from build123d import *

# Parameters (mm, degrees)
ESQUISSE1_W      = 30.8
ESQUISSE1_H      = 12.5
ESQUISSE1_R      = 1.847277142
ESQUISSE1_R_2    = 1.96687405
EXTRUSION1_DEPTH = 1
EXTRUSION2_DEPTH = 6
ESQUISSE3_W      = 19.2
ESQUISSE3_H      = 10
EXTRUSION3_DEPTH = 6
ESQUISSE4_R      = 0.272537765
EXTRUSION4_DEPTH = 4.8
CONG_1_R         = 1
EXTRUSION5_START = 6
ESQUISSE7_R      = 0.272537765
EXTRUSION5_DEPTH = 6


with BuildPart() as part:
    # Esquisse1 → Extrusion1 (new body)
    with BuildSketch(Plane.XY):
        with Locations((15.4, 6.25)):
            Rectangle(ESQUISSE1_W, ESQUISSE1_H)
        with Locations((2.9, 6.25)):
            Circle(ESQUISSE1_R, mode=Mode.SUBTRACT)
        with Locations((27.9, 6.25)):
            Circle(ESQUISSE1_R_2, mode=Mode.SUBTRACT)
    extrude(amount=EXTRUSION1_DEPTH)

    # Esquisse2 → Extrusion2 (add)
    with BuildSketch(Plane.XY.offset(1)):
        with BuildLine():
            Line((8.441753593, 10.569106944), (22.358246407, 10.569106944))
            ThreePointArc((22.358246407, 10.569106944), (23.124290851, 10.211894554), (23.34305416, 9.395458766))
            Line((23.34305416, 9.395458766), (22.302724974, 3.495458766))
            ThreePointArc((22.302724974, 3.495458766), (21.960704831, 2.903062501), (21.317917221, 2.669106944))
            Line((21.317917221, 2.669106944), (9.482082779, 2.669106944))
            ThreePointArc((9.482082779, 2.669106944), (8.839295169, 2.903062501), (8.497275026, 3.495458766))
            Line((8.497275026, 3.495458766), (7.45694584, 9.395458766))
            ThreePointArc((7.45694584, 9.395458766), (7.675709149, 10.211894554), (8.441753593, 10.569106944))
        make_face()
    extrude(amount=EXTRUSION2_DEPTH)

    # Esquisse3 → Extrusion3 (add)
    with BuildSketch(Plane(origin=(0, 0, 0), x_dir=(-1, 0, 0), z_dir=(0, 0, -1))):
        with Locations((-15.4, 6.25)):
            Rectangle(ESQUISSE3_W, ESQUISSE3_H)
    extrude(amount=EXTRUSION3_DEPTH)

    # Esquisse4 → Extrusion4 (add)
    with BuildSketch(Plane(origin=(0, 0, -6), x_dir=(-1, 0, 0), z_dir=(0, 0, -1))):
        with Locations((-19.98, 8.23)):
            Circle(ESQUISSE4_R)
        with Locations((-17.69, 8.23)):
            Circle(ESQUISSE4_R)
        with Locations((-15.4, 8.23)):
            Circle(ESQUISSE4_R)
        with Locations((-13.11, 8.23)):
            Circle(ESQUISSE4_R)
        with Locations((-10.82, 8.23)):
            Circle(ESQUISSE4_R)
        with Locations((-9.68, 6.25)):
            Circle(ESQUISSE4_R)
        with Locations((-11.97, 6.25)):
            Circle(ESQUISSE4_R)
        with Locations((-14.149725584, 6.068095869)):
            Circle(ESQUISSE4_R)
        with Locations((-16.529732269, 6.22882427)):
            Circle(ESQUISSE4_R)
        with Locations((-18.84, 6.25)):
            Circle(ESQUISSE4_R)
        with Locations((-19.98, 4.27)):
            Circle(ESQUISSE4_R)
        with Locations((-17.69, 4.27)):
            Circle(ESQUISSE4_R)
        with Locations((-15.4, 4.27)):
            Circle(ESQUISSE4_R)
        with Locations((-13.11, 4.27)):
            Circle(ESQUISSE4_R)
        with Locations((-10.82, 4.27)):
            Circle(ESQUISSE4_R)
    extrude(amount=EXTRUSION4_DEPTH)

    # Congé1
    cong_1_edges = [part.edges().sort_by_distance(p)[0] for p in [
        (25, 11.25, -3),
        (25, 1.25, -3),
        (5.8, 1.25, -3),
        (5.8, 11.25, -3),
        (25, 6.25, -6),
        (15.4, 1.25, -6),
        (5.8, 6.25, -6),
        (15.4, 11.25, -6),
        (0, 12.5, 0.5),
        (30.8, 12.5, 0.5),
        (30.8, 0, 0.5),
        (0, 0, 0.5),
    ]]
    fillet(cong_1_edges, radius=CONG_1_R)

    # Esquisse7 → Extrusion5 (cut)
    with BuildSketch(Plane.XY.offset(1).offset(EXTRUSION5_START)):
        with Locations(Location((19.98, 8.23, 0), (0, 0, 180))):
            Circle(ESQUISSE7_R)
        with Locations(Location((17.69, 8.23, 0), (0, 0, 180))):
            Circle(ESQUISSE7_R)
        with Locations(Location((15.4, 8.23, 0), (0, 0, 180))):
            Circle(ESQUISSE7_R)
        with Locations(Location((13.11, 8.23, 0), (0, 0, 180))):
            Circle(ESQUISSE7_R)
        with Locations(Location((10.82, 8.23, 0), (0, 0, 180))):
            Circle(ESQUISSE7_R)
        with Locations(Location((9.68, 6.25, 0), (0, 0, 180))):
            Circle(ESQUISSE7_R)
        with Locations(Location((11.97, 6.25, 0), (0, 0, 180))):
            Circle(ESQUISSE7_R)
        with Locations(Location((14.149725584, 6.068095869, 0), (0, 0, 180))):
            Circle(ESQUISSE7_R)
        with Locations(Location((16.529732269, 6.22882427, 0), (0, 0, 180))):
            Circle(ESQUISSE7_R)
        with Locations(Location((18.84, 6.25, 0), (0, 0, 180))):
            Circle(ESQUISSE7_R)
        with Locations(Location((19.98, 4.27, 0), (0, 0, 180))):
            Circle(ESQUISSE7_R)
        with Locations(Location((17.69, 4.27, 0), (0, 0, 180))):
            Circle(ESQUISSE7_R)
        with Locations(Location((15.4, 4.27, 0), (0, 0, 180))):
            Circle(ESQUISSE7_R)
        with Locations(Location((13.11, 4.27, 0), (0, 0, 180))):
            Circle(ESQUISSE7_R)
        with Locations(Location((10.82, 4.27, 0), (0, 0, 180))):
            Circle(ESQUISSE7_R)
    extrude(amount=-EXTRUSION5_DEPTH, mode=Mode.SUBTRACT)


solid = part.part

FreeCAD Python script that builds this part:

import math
import FreeCAD as App
import Part
import Sketcher
from FreeCAD import Vector
Q = App.Units.Quantity


def edges_at(feature, points):
    """Names of the edges that pass closest to the given points."""
    edges = feature.Shape.Edges
    near = lambda p: min(range(len(edges)), key=lambda i: edges[i].distToShape(Part.Vertex(*p))[0])
    return sorted({f"Edge{near(p) + 1}" for p in points})

doc = App.newDocument("Part")
params = doc.addObject("Spreadsheet::Sheet", "Params")
for row, (alias, value) in enumerate([
    ("sketch1_width", "30.8 mm"),
    ("sketch1_height", "12.5 mm"),
    ("pad1_length", "1 mm"),
    ("sketch2_radius", "1 mm"),
    ("pad2_length", "6 mm"),
    ("sketch3_height", "10 mm"),
    ("sketch3_width", "19.2 mm"),
    ("pad3_length", "6 mm"),
    ("pad4_length", "4.8 mm"),
    ("fillet_radius", "1 mm"),
    ("pocket1_length", "6 mm"),
], start=1):
    params.set(f"A{row}", alias)
    params.set(f"B{row}", "=" + value)
    params.setAlias(f"B{row}", alias)

body = doc.addObject("PartDesign::Body", "Body")

sketch1 = doc.addObject("Sketcher::SketchObject", "Sketch")
body.addObject(sketch1)
sketch1.AttachmentSupport = (doc.XY_Plane, [""])
sketch1.MapMode = "FlatFace"
sketch1.addGeometry(Part.LineSegment(Vector(0, 12.5, 0), Vector(0, 0, 0)), False)
sketch1.addGeometry(Part.LineSegment(Vector(0, 0, 0), Vector(30.8, 0, 0)), False)
sketch1.addGeometry(Part.LineSegment(Vector(30.8, 0, 0), Vector(30.8, 12.5, 0)), False)
sketch1.addGeometry(Part.LineSegment(Vector(30.8, 12.5, 0), Vector(0, 12.5, 0)), False)
sketch1.addGeometry(Part.Circle(Vector(2.9, 6.2, 0), Vector(0, 0, 1), 1.8), False)
sketch1.addGeometry(Part.Circle(Vector(27.9, 6.2, 0), Vector(0, 0, 1), 2), False)
sketch1.addConstraint(Sketcher.Constraint("Coincident", 0, 2, 1, 1))
sketch1.addConstraint(Sketcher.Constraint("Coincident", 1, 2, 2, 1))
sketch1.addConstraint(Sketcher.Constraint("Coincident", 2, 2, 3, 1))
sketch1.addConstraint(Sketcher.Constraint("Coincident", 3, 2, 0, 1))
sketch1.addConstraint(Sketcher.Constraint("Vertical", 0))
sketch1.addConstraint(Sketcher.Constraint("Horizontal", 1))
sketch1.addConstraint(Sketcher.Constraint("Vertical", 2))
sketch1.addConstraint(Sketcher.Constraint("Horizontal", 3))
sketch1.addConstraint(Sketcher.Constraint("Coincident", 0, 2, -1, 1))
sketch1.addConstraint(Sketcher.Constraint("Horizontal", 4, 3, 5, 3))
sketch1.addConstraint(Sketcher.Constraint("DistanceX", 1, 1, 1, 2, Q("30.8 mm")))
sketch1.addConstraint(Sketcher.Constraint("DistanceY", 0, 2, 0, 1, Q("12.5 mm")))
sketch1.addConstraint(Sketcher.Constraint("DistanceX", 4, 3, 5, 3, Q("25 mm")))
sketch1.addConstraint(Sketcher.Constraint("DistanceX", -1, 1, 4, 3, Q("2.9 mm")))
sketch1.addConstraint(Sketcher.Constraint("Diameter", 5, Q("3.933748 mm")))
sketch1.addConstraint(Sketcher.Constraint("DistanceY", -1, 1, 4, 3, Q("6.25 mm")))
sketch1.addConstraint(Sketcher.Constraint("Diameter", 4, Q("3.694554 mm")))
sketch1.setExpression("Constraints[10]", "Params.sketch1_width")
sketch1.setExpression("Constraints[11]", "Params.sketch1_height")
pad1 = doc.addObject("PartDesign::Pad", "Pad")
body.addObject(pad1)
pad1.Profile = sketch1
pad1.setExpression("Length", "Params.pad1_length")

sketch2 = doc.addObject("Sketcher::SketchObject", "Sketch001")
body.addObject(sketch2)
sketch2.AttachmentSupport = (doc.XY_Plane, [""])
sketch2.MapMode = "FlatFace"
sketch2.AttachmentOffset = App.Placement(Vector(0, 0, 1), App.Rotation())
sketch2.addGeometry(Part.LineSegment(Vector(22.4, 10.6, 0), Vector(8.4, 10.6, 0)), False)
sketch2.addGeometry(Part.ArcOfCircle(Part.Circle(Vector(8.4, 9.6, 0), Vector(0, 0, 1), 1), math.radians(90), math.radians(190)), False)
sketch2.addGeometry(Part.LineSegment(Vector(7.5, 9.4, 0), Vector(8.5, 3.5, 0)), False)
sketch2.addGeometry(Part.ArcOfCircle(Part.Circle(Vector(9.5, 3.7, 0), Vector(0, 0, 1), 1), math.radians(-170), math.radians(-90)), False)
sketch2.addGeometry(Part.LineSegment(Vector(9.5, 2.7, 0), Vector(21.3, 2.7, 0)), False)
sketch2.addGeometry(Part.ArcOfCircle(Part.Circle(Vector(21.3, 3.7, 0), Vector(0, 0, 1), 1), math.radians(-90), math.radians(-10)), False)
sketch2.addGeometry(Part.LineSegment(Vector(22.3, 3.5, 0), Vector(23.3, 9.4, 0)), False)
sketch2.addGeometry(Part.ArcOfCircle(Part.Circle(Vector(22.4, 9.6, 0), Vector(0, 0, 1), 1), math.radians(-10), math.radians(90)), False)
sketch2.addConstraint(Sketcher.Constraint("Tangent", 0, 2, 1, 1))
sketch2.addConstraint(Sketcher.Constraint("Tangent", 1, 2, 2, 1))
sketch2.addConstraint(Sketcher.Constraint("Tangent", 2, 2, 3, 1))
sketch2.addConstraint(Sketcher.Constraint("Tangent", 3, 2, 4, 1))
sketch2.addConstraint(Sketcher.Constraint("Tangent", 4, 2, 5, 1))
sketch2.addConstraint(Sketcher.Constraint("Tangent", 5, 2, 6, 1))
sketch2.addConstraint(Sketcher.Constraint("Tangent", 6, 2, 7, 1))
sketch2.addConstraint(Sketcher.Constraint("Tangent", 7, 2, 0, 1))
sketch2.addConstraint(Sketcher.Constraint("Horizontal", 0))
sketch2.addConstraint(Sketcher.Constraint("Horizontal", 4))
sketch2.addConstraint(Sketcher.Constraint("Equal", 1, 3))
sketch2.addConstraint(Sketcher.Constraint("Equal", 3, 5))
sketch2.addConstraint(Sketcher.Constraint("Equal", 5, 7))
sketch2.addConstraint(Sketcher.Constraint("Horizontal", 2, 2, 5, 2))
sketch2.addConstraint(Sketcher.Constraint("Radius", 1, Q("1 mm")))
sketch2.addConstraint(Sketcher.Constraint("Angle", 2, Q("-80 deg")))
sketch2.addConstraint(Sketcher.Constraint("DistanceY", 3, 3, 1, 3, Q("5.9 mm")))
sketch2.addConstraint(Sketcher.Constraint("DistanceX", 1, 2, 7, 3, Q("14.901301 mm")))
sketch2.addConstraint(Sketcher.Constraint("DistanceY", -1, 1, 1, 2, Q("9.395459 mm")))
sketch2.addConstraint(Sketcher.Constraint("DistanceX", -1, 1, 1, 3, Q("8.441754 mm")))
sketch2.setExpression("Constraints[14]", "Params.sketch2_radius")
pad2 = doc.addObject("PartDesign::Pad", "Pad001")
body.addObject(pad2)
pad2.Profile = sketch2
pad2.setExpression("Length", "Params.pad2_length")

sketch3 = doc.addObject("Sketcher::SketchObject", "Sketch002")
body.addObject(sketch3)
sketch3.AttachmentSupport = (doc.XY_Plane, [""])
sketch3.MapMode = "FlatFace"
sketch3.addGeometry(Part.LineSegment(Vector(25, 11, 0), Vector(25, 1, 0)), False)
sketch3.addGeometry(Part.LineSegment(Vector(25, 1, 0), Vector(6, 1, 0)), False)
sketch3.addGeometry(Part.LineSegment(Vector(6, 1, 0), Vector(6, 11, 0)), False)
sketch3.addGeometry(Part.LineSegment(Vector(6, 11, 0), Vector(25, 11, 0)), False)
sketch3.addConstraint(Sketcher.Constraint("Coincident", 0, 2, 1, 1))
sketch3.addConstraint(Sketcher.Constraint("Coincident", 1, 2, 2, 1))
sketch3.addConstraint(Sketcher.Constraint("Coincident", 2, 2, 3, 1))
sketch3.addConstraint(Sketcher.Constraint("Coincident", 3, 2, 0, 1))
sketch3.addConstraint(Sketcher.Constraint("Vertical", 0))
sketch3.addConstraint(Sketcher.Constraint("Horizontal", 1))
sketch3.addConstraint(Sketcher.Constraint("Vertical", 2))
sketch3.addConstraint(Sketcher.Constraint("Horizontal", 3))
sketch3.addConstraint(Sketcher.Constraint("DistanceY", 0, 2, 0, 1, Q("10 mm")))
sketch3.addConstraint(Sketcher.Constraint("DistanceX", 1, 2, 1, 1, Q("19.2 mm")))
sketch3.addConstraint(Sketcher.Constraint("DistanceX", -1, 1, 0, 2, Q("25 mm")))
sketch3.addConstraint(Sketcher.Constraint("DistanceY", -1, 1, 0, 2, Q("1.25 mm")))
sketch3.setExpression("Constraints[8]", "Params.sketch3_height")
sketch3.setExpression("Constraints[9]", "Params.sketch3_width")
pad3 = doc.addObject("PartDesign::Pad", "Pad002")
body.addObject(pad3)
pad3.Profile = sketch3
pad3.setExpression("Length", "Params.pad3_length")
pad3.Reversed = True

sketch4 = doc.addObject("Sketcher::SketchObject", "Sketch003")
body.addObject(sketch4)
sketch4.AttachmentSupport = (doc.XY_Plane, [""])
sketch4.MapMode = "FlatFace"
sketch4.AttachmentOffset = App.Placement(Vector(0, 0, -6), App.Rotation())
sketch4.addGeometry(Part.Circle(Vector(19.98, 8.23, 0), Vector(0, 0, 1), 0.27), False)
sketch4.addGeometry(Part.Circle(Vector(17.69, 8.23, 0), Vector(0, 0, 1), 0.27), False)
sketch4.addGeometry(Part.Circle(Vector(15.4, 8.23, 0), Vector(0, 0, 1), 0.27), False)
sketch4.addGeometry(Part.Circle(Vector(13.11, 8.23, 0), Vector(0, 0, 1), 0.27), False)
sketch4.addGeometry(Part.Circle(Vector(10.82, 8.23, 0), Vector(0, 0, 1), 0.27), False)
sketch4.addGeometry(Part.Circle(Vector(9.68, 6.25, 0), Vector(0, 0, 1), 0.27), False)
sketch4.addGeometry(Part.Circle(Vector(11.97, 6.25, 0), Vector(0, 0, 1), 0.27), False)
sketch4.addGeometry(Part.Circle(Vector(14.15, 6.07, 0), Vector(0, 0, 1), 0.27), False)
sketch4.addGeometry(Part.Circle(Vector(16.53, 6.23, 0), Vector(0, 0, 1), 0.27), False)
sketch4.addGeometry(Part.Circle(Vector(18.84, 6.25, 0), Vector(0, 0, 1), 0.27), False)
sketch4.addGeometry(Part.Circle(Vector(19.98, 4.27, 0), Vector(0, 0, 1), 0.27), False)
sketch4.addGeometry(Part.Circle(Vector(17.69, 4.27, 0), Vector(0, 0, 1), 0.27), False)
sketch4.addGeometry(Part.Circle(Vector(15.4, 4.27, 0), Vector(0, 0, 1), 0.27), False)
sketch4.addGeometry(Part.Circle(Vector(13.11, 4.27, 0), Vector(0, 0, 1), 0.27), False)
sketch4.addGeometry(Part.Circle(Vector(10.82, 4.27, 0), Vector(0, 0, 1), 0.27), False)
sketch4.addConstraint(Sketcher.Constraint("Equal", 0, 1))
sketch4.addConstraint(Sketcher.Constraint("Equal", 1, 2))
sketch4.addConstraint(Sketcher.Constraint("Equal", 2, 3))
sketch4.addConstraint(Sketcher.Constraint("Equal", 3, 4))
sketch4.addConstraint(Sketcher.Constraint("Equal", 4, 5))
sketch4.addConstraint(Sketcher.Constraint("Equal", 5, 6))
sketch4.addConstraint(Sketcher.Constraint("Equal", 6, 7))
sketch4.addConstraint(Sketcher.Constraint("Equal", 7, 8))
sketch4.addConstraint(Sketcher.Constraint("Equal", 8, 9))
sketch4.addConstraint(Sketcher.Constraint("Equal", 9, 10))
sketch4.addConstraint(Sketcher.Constraint("Equal", 10, 11))
sketch4.addConstraint(Sketcher.Constraint("Equal", 11, 12))
sketch4.addConstraint(Sketcher.Constraint("Equal", 12, 13))
sketch4.addConstraint(Sketcher.Constraint("Equal", 13, 14))
sketch4.addConstraint(Sketcher.Constraint("Horizontal", 0, 3, 1, 3))
sketch4.addConstraint(Sketcher.Constraint("Horizontal", 1, 3, 2, 3))
sketch4.addConstraint(Sketcher.Constraint("Horizontal", 2, 3, 3, 3))
sketch4.addConstraint(Sketcher.Constraint("Horizontal", 3, 3, 4, 3))
sketch4.addConstraint(Sketcher.Constraint("Horizontal", 5, 3, 6, 3))
sketch4.addConstraint(Sketcher.Constraint("Horizontal", 6, 3, 9, 3))
sketch4.addConstraint(Sketcher.Constraint("Horizontal", 10, 3, 11, 3))
sketch4.addConstraint(Sketcher.Constraint("Horizontal", 11, 3, 12, 3))
sketch4.addConstraint(Sketcher.Constraint("Horizontal", 12, 3, 13, 3))
sketch4.addConstraint(Sketcher.Constraint("Horizontal", 13, 3, 14, 3))
sketch4.addConstraint(Sketcher.Constraint("Vertical", 0, 3, 10, 3))
sketch4.addConstraint(Sketcher.Constraint("Vertical", 1, 3, 11, 3))
sketch4.addConstraint(Sketcher.Constraint("Vertical", 2, 3, 12, 3))
sketch4.addConstraint(Sketcher.Constraint("Vertical", 3, 3, 13, 3))
sketch4.addConstraint(Sketcher.Constraint("Vertical", 4, 3, 14, 3))
sketch4.addConstraint(Sketcher.Constraint("DistanceX", -1, 1, 2, 3, Q("15.4 mm")))
sketch4.addConstraint(Sketcher.Constraint("DistanceX", 5, 3, 0, 3, Q("10.3 mm")))
sketch4.addConstraint(Sketcher.Constraint("DistanceX", -1, 1, 0, 3, Q("19.98 mm")))
sketch4.addConstraint(Sketcher.Constraint("DistanceY", -1, 1, 0, 3, Q("8.23 mm")))
sketch4.addConstraint(Sketcher.Constraint("DistanceX", -1, 1, 1, 3, Q("17.69 mm")))
sketch4.addConstraint(Sketcher.Constraint("DistanceX", -1, 1, 3, 3, Q("13.11 mm")))
sketch4.addConstraint(Sketcher.Constraint("DistanceX", -1, 1, 4, 3, Q("10.82 mm")))
sketch4.addConstraint(Sketcher.Constraint("DistanceY", -1, 1, 5, 3, Q("6.25 mm")))
sketch4.addConstraint(Sketcher.Constraint("DistanceX", -1, 1, 6, 3, Q("11.97 mm")))
sketch4.addConstraint(Sketcher.Constraint("DistanceX", -1, 1, 9, 3, Q("18.84 mm")))
sketch4.addConstraint(Sketcher.Constraint("DistanceY", -1, 1, 10, 3, Q("4.27 mm")))
sketch4.addConstraint(Sketcher.Constraint("Diameter", 0, Q("0.545076 mm")))
sketch4.addConstraint(Sketcher.Constraint("DistanceY", 7, 3, 8, 3, Q("0.160728 mm")))
sketch4.addConstraint(Sketcher.Constraint("DistanceX", -1, 1, 7, 3, Q("14.149726 mm")))
sketch4.addConstraint(Sketcher.Constraint("DistanceY", -1, 1, 7, 3, Q("6.068096 mm")))
sketch4.addConstraint(Sketcher.Constraint("DistanceX", -1, 1, 8, 3, Q("16.529732 mm")))
pad4 = doc.addObject("PartDesign::Pad", "Pad003")
body.addObject(pad4)
pad4.Profile = sketch4
pad4.setExpression("Length", "Params.pad4_length")
pad4.Reversed = True
doc.recompute()

fillet = doc.addObject("PartDesign::Fillet", "Fillet")
body.addObject(fillet)
fillet.Base = (pad4, edges_at(pad4, [
    (25, 11.25, -3),
    (25, 1.25, -3),
    (5.8, 1.25, -3),
    (5.8, 11.25, -3),
    (25, 6.25, -6),
    (15.4, 1.25, -6),
    (5.8, 6.25, -6),
    (15.4, 11.25, -6),
    (0, 12.5, 0.5),
    (30.8, 12.5, 0.5),
    (30.8, 0, 0.5),
    (0, 0, 0.5),
]))
fillet.setExpression("Radius", "Params.fillet_radius")

sketch5 = doc.addObject("Sketcher::SketchObject", "Sketch004")
body.addObject(sketch5)
sketch5.AttachmentSupport = (doc.XY_Plane, [""])
sketch5.MapMode = "FlatFace"
sketch5.AttachmentOffset = App.Placement(Vector(0, 0, 7), App.Rotation())
sketch5.addGeometry(Part.Circle(Vector(19.98, 8.23, 0), Vector(0, 0, 1), 0.27), False)
sketch5.addGeometry(Part.Circle(Vector(17.69, 8.23, 0), Vector(0, 0, 1), 0.27), False)
sketch5.addGeometry(Part.Circle(Vector(15.4, 8.23, 0), Vector(0, 0, 1), 0.27), False)
sketch5.addGeometry(Part.Circle(Vector(13.11, 8.23, 0), Vector(0, 0, 1), 0.27), False)
sketch5.addGeometry(Part.Circle(Vector(10.82, 8.23, 0), Vector(0, 0, 1), 0.27), False)
sketch5.addGeometry(Part.Circle(Vector(9.68, 6.25, 0), Vector(0, 0, 1), 0.27), False)
sketch5.addGeometry(Part.Circle(Vector(11.97, 6.25, 0), Vector(0, 0, 1), 0.27), False)
sketch5.addGeometry(Part.Circle(Vector(14.15, 6.07, 0), Vector(0, 0, 1), 0.27), False)
sketch5.addGeometry(Part.Circle(Vector(16.53, 6.23, 0), Vector(0, 0, 1), 0.27), False)
sketch5.addGeometry(Part.Circle(Vector(18.84, 6.25, 0), Vector(0, 0, 1), 0.27), False)
sketch5.addGeometry(Part.Circle(Vector(19.98, 4.27, 0), Vector(0, 0, 1), 0.27), False)
sketch5.addGeometry(Part.Circle(Vector(17.69, 4.27, 0), Vector(0, 0, 1), 0.27), False)
sketch5.addGeometry(Part.Circle(Vector(15.4, 4.27, 0), Vector(0, 0, 1), 0.27), False)
sketch5.addGeometry(Part.Circle(Vector(13.11, 4.27, 0), Vector(0, 0, 1), 0.27), False)
sketch5.addGeometry(Part.Circle(Vector(10.82, 4.27, 0), Vector(0, 0, 1), 0.27), False)
sketch5.addConstraint(Sketcher.Constraint("Equal", 0, 1))
sketch5.addConstraint(Sketcher.Constraint("Equal", 1, 2))
sketch5.addConstraint(Sketcher.Constraint("Equal", 2, 3))
sketch5.addConstraint(Sketcher.Constraint("Equal", 3, 4))
sketch5.addConstraint(Sketcher.Constraint("Equal", 4, 5))
sketch5.addConstraint(Sketcher.Constraint("Equal", 5, 6))
sketch5.addConstraint(Sketcher.Constraint("Equal", 6, 7))
sketch5.addConstraint(Sketcher.Constraint("Equal", 7, 8))
sketch5.addConstraint(Sketcher.Constraint("Equal", 8, 9))
sketch5.addConstraint(Sketcher.Constraint("Equal", 9, 10))
sketch5.addConstraint(Sketcher.Constraint("Equal", 10, 11))
sketch5.addConstraint(Sketcher.Constraint("Equal", 11, 12))
sketch5.addConstraint(Sketcher.Constraint("Equal", 12, 13))
sketch5.addConstraint(Sketcher.Constraint("Equal", 13, 14))
sketch5.addConstraint(Sketcher.Constraint("Horizontal", 0, 3, 1, 3))
sketch5.addConstraint(Sketcher.Constraint("Horizontal", 1, 3, 2, 3))
sketch5.addConstraint(Sketcher.Constraint("Horizontal", 2, 3, 3, 3))
sketch5.addConstraint(Sketcher.Constraint("Horizontal", 3, 3, 4, 3))
sketch5.addConstraint(Sketcher.Constraint("Horizontal", 5, 3, 6, 3))
sketch5.addConstraint(Sketcher.Constraint("Horizontal", 6, 3, 9, 3))
sketch5.addConstraint(Sketcher.Constraint("Horizontal", 10, 3, 11, 3))
sketch5.addConstraint(Sketcher.Constraint("Horizontal", 11, 3, 12, 3))
sketch5.addConstraint(Sketcher.Constraint("Horizontal", 12, 3, 13, 3))
sketch5.addConstraint(Sketcher.Constraint("Horizontal", 13, 3, 14, 3))
sketch5.addConstraint(Sketcher.Constraint("Vertical", 0, 3, 10, 3))
sketch5.addConstraint(Sketcher.Constraint("Vertical", 1, 3, 11, 3))
sketch5.addConstraint(Sketcher.Constraint("Vertical", 2, 3, 12, 3))
sketch5.addConstraint(Sketcher.Constraint("Vertical", 3, 3, 13, 3))
sketch5.addConstraint(Sketcher.Constraint("Vertical", 4, 3, 14, 3))
sketch5.addConstraint(Sketcher.Constraint("DistanceX", -1, 1, 2, 3, Q("15.4 mm")))
sketch5.addConstraint(Sketcher.Constraint("DistanceX", 5, 3, 0, 3, Q("10.3 mm")))
sketch5.addConstraint(Sketcher.Constraint("DistanceX", -1, 1, 0, 3, Q("19.98 mm")))
sketch5.addConstraint(Sketcher.Constraint("DistanceY", -1, 1, 0, 3, Q("8.23 mm")))
sketch5.addConstraint(Sketcher.Constraint("DistanceX", -1, 1, 1, 3, Q("17.69 mm")))
sketch5.addConstraint(Sketcher.Constraint("DistanceX", -1, 1, 3, 3, Q("13.11 mm")))
sketch5.addConstraint(Sketcher.Constraint("DistanceX", -1, 1, 4, 3, Q("10.82 mm")))
sketch5.addConstraint(Sketcher.Constraint("DistanceY", -1, 1, 5, 3, Q("6.25 mm")))
sketch5.addConstraint(Sketcher.Constraint("DistanceX", -1, 1, 6, 3, Q("11.97 mm")))
sketch5.addConstraint(Sketcher.Constraint("DistanceX", -1, 1, 9, 3, Q("18.84 mm")))
sketch5.addConstraint(Sketcher.Constraint("DistanceY", -1, 1, 10, 3, Q("4.27 mm")))
sketch5.addConstraint(Sketcher.Constraint("Diameter", 0, Q("0.545076 mm")))
sketch5.addConstraint(Sketcher.Constraint("DistanceY", 7, 3, 8, 3, Q("0.160728 mm")))
sketch5.addConstraint(Sketcher.Constraint("DistanceX", -1, 1, 7, 3, Q("14.149726 mm")))
sketch5.addConstraint(Sketcher.Constraint("DistanceY", -1, 1, 7, 3, Q("6.068096 mm")))
sketch5.addConstraint(Sketcher.Constraint("DistanceX", -1, 1, 8, 3, Q("16.529732 mm")))
pocket1 = doc.addObject("PartDesign::Pocket", "Pocket")
body.addObject(pocket1)
pocket1.Profile = sketch5
pocket1.setExpression("Length", "Params.pocket1_length")

doc.recompute()
